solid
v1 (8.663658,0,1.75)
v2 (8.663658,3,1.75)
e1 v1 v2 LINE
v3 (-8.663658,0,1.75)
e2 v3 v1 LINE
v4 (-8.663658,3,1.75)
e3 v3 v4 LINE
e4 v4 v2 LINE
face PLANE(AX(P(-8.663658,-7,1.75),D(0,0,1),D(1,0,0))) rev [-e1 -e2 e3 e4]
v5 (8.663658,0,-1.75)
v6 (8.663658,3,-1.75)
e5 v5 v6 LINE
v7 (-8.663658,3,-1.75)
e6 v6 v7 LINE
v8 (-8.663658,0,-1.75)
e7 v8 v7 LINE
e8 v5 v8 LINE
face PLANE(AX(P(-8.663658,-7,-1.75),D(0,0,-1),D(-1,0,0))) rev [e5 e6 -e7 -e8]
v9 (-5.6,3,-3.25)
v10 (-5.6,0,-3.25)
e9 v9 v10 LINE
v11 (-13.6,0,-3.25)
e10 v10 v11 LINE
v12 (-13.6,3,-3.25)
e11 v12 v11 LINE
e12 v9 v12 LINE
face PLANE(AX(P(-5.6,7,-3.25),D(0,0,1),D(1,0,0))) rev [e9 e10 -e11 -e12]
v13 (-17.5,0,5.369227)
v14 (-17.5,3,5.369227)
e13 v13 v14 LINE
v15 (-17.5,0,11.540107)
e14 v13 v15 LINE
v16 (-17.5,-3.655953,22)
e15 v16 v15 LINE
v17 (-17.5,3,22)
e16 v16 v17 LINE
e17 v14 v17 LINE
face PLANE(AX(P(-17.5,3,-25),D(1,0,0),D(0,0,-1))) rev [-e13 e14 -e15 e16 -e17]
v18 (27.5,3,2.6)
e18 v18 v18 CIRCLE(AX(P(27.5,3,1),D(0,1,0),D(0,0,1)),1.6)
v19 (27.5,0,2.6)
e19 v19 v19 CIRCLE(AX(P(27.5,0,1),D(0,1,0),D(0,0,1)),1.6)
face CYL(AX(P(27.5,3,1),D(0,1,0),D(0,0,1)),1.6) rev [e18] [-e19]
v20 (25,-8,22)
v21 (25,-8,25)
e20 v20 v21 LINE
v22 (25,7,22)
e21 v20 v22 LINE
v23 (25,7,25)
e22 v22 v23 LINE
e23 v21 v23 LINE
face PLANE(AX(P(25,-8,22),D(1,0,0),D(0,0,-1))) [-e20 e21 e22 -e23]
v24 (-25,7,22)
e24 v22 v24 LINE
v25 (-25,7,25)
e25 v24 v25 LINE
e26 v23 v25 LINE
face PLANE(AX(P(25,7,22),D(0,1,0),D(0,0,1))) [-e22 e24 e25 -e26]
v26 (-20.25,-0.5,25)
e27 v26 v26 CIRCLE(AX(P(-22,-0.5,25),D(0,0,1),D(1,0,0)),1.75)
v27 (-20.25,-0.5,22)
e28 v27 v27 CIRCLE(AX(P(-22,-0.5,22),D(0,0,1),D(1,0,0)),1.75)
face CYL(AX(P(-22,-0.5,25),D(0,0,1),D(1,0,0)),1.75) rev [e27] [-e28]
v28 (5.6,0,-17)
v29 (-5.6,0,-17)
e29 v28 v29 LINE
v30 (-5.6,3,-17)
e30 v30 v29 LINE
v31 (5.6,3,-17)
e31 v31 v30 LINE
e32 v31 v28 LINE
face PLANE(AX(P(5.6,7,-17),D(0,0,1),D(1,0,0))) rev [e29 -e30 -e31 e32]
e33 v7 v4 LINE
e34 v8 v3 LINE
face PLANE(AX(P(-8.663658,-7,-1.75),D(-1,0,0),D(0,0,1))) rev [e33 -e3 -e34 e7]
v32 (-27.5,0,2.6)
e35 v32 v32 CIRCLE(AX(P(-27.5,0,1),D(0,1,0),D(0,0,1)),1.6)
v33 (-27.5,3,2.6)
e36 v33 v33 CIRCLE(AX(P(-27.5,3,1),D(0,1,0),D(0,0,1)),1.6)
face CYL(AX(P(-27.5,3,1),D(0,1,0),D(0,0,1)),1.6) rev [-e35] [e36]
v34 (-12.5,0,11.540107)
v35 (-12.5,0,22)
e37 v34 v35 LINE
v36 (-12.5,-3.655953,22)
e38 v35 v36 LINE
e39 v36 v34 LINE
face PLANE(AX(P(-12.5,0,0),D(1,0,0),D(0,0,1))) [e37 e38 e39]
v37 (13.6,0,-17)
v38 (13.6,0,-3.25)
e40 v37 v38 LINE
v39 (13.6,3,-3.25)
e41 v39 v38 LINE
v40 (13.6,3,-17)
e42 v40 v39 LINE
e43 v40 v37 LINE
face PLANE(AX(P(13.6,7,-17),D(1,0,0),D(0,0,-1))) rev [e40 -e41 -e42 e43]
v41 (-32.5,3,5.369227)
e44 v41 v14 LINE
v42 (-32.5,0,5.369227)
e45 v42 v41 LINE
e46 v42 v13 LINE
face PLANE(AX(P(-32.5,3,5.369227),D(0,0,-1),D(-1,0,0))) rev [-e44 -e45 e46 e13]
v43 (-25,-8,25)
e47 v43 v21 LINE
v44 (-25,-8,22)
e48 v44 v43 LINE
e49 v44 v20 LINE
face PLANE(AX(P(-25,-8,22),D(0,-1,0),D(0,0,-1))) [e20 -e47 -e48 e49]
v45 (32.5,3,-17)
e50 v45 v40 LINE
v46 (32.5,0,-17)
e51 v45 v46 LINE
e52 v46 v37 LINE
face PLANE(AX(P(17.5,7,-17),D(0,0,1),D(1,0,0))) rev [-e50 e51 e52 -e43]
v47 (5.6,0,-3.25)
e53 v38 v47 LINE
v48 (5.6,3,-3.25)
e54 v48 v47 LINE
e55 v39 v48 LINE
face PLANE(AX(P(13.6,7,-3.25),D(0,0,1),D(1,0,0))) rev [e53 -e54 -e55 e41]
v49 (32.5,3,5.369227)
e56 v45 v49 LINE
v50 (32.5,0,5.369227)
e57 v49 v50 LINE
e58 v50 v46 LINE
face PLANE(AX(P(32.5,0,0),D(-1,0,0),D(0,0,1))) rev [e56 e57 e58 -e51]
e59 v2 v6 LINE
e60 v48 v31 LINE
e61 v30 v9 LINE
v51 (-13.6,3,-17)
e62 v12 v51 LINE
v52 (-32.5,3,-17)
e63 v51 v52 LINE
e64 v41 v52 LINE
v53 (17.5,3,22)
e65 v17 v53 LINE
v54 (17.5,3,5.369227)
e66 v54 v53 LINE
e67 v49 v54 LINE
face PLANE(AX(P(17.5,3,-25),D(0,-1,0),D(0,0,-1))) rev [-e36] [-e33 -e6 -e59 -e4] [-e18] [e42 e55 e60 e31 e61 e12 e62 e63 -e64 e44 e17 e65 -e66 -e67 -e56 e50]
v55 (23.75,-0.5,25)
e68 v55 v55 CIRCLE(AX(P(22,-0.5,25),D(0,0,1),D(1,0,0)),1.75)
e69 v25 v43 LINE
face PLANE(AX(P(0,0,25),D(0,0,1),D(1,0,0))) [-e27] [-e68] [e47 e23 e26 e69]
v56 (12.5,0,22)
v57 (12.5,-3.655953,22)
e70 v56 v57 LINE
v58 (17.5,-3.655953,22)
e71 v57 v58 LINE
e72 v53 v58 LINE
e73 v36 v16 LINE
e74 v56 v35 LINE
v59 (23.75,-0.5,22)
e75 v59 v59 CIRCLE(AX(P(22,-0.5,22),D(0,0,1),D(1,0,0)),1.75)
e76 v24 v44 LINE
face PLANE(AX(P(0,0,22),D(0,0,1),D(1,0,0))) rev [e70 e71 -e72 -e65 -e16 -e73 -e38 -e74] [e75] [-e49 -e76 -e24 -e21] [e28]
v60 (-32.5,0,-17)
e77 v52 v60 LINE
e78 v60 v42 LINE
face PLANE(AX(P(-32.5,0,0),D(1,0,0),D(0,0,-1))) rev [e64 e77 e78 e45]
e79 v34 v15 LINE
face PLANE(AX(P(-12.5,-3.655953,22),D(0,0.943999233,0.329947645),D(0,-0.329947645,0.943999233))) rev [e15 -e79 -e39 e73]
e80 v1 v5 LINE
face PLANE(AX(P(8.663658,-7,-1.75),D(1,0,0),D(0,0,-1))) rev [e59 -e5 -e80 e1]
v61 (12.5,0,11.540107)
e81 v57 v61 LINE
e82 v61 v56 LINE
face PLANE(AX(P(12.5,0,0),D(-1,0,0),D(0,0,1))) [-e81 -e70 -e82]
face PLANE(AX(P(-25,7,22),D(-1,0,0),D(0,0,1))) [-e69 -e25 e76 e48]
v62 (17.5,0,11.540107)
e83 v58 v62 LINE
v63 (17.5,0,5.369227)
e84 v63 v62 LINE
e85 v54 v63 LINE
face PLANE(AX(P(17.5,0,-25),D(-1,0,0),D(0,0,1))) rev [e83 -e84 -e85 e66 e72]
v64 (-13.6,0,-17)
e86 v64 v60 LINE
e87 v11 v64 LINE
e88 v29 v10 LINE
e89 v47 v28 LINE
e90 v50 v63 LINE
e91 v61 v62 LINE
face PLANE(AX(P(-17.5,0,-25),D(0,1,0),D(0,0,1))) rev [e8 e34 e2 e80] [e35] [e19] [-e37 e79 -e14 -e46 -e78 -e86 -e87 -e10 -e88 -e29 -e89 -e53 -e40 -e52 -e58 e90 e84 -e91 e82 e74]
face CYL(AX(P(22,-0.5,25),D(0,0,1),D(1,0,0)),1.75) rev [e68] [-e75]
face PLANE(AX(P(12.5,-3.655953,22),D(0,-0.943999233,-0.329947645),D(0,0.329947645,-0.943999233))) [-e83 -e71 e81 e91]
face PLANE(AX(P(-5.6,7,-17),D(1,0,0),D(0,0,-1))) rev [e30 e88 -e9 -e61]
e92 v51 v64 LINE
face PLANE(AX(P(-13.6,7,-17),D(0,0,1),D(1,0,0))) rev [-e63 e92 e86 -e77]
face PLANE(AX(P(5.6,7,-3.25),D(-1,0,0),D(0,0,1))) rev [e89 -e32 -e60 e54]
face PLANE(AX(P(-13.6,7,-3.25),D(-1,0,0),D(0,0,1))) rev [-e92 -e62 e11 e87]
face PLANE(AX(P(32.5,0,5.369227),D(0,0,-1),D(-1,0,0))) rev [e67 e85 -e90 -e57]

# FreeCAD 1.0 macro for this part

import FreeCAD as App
import Part
import Sketcher
from FreeCAD import Vector
Q = App.Units.Quantity

doc = App.newDocument("Part")
body = doc.addObject("PartDesign::Body", "Body")

# Sketch on XY plane
sketch1 = doc.addObject("Sketcher::SketchObject", "Sketch")
body.addObject(sketch1)
sketch1.AttachmentSupport = (doc.XY_Plane, [""])
sketch1.MapMode = "FlatFace"
sketch1.AttachmentOffset = App.Placement(Vector(0, 0, 25), App.Rotation())
sketch1.addGeometry([
    Part.LineSegment(Vector(-25, 7, 0), Vector(-25, -8, 0)),
    Part.LineSegment(Vector(-25, -8, 0), Vector(25, -8, 0)),
    Part.LineSegment(Vector(25, -8, 0), Vector(25, 7, 0)),
    Part.LineSegment(Vector(25, 7, 0), Vector(-25, 7, 0)),
], False)
sketch1.addConstraint([
    Sketcher.Constraint("Coincident", 0, 2, 1, 1),
    Sketcher.Constraint("Coincident", 1, 2, 2, 1),
    Sketcher.Constraint("Coincident", 2, 2, 3, 1),
    Sketcher.Constraint("Coincident", 3, 2, 0, 1),
    Sketcher.Constraint("Vertical", 0),
    Sketcher.Constraint("Horizontal", 1),
    Sketcher.Constraint("Vertical", 2),
    Sketcher.Constraint("Horizontal", 3),
    Sketcher.Constraint("DistanceX", 1, 1, 1, 2, Q("50 mm")),
    Sketcher.Constraint("DistanceY", 0, 2, 0, 1, Q("15 mm")),
    Sketcher.Constraint("DistanceX", 0, 2, -1, 1, Q("25 mm")),
    Sketcher.Constraint("DistanceY", 0, 2, -1, 1, Q("8 mm")),
])
pad1 = doc.addObject("PartDesign::Pad", "Pad")
body.addObject(pad1)
pad1.Profile = sketch1
pad1.Length = 3
pad1.Reversed = True

# Sketch on XY plane
sketch2 = doc.addObject("Sketcher::SketchObject", "Sketch001")
body.addObject(sketch2)
sketch2.AttachmentSupport = (doc.XY_Plane, [""])
sketch2.MapMode = "FlatFace"
sketch2.AttachmentOffset = App.Placement(Vector(0, 0, 22), App.Rotation())
sketch2.addGeometry([
    Part.LineSegment(Vector(17.5, 3, 0), Vector(17.5, 0, 0)),
    Part.LineSegment(Vector(17.5, 0, 0), Vector(-17.5, 0, 0)),
    Part.LineSegment(Vector(-17.5, 0, 0), Vector(-17.5, 3, 0)),
    Part.LineSegment(Vector(-17.5, 3, 0), Vector(17.5, 3, 0)),
], False)
sketch2.addConstraint([
    Sketcher.Constraint("Coincident", 0, 2, 1, 1),
    Sketcher.Constraint("Coincident", 1, 2, 2, 1),
    Sketcher.Constraint("Coincident", 2, 2, 3, 1),
    Sketcher.Constraint("Coincident", 3, 2, 0, 1),
    Sketcher.Constraint("Vertical", 0),
    Sketcher.Constraint("Horizontal", 1),
    Sketcher.Constraint("Vertical", 2),
    Sketcher.Constraint("Horizontal", 3),
    Sketcher.Constraint("Symmetric", 0, 2, 1, 2, -1, 1),
    Sketcher.Constraint("DistanceX", 1, 2, 1, 1, Q("35 mm")),
    Sketcher.Constraint("DistanceY", 0, 2, 0, 1, Q("3 mm")),
])
pad2 = doc.addObject("PartDesign::Pad", "Pad001")
body.addObject(pad2)
pad2.Profile = sketch2
pad2.Length = 47
pad2.Reversed = True

# Sketch on YZ plane
sketch3 = doc.addObject("Sketcher::SketchObject", "Sketch002")
body.addObject(sketch3)
sketch3.AttachmentSupport = (doc.YZ_Plane, [""])
sketch3.MapMode = "FlatFace"
sketch3.AttachmentOffset = App.Placement(Vector(0, 0, 17.5), App.Rotation())
sketch3.addGeometry([
    Part.LineSegment(Vector(3, 5.4, 0), Vector(0, 5.4, 0)),
    Part.LineSegment(Vector(0, 5.4, 0), Vector(0, -25, 0)),
    Part.LineSegment(Vector(0, -25, 0), Vector(3, -25, 0)),
    Part.LineSegment(Vector(3, -25, 0), Vector(3, 5.4, 0)),
], False)
sketch3.addConstraint([
    Sketcher.Constraint("Coincident", 0, 2, 1, 1),
    Sketcher.Constraint("Coincident", 1, 2, 2, 1),
    Sketcher.Constraint("Coincident", 2, 2, 3, 1),
    Sketcher.Constraint("Coincident", 3, 2, 0, 1),
    Sketcher.Constraint("Horizontal", 0),
    Sketcher.Constraint("Vertical", 1),
    Sketcher.Constraint("Horizontal", 2),
    Sketcher.Constraint("Vertical", 3),
    Sketcher.Constraint("PointOnObject", 0, 2, -2),
    Sketcher.Constraint("DistanceX", 0, 2, 0, 1, Q("3 mm")),
    Sketcher.Constraint("DistanceY", 1, 2, -1, 1, Q("25 mm")),
    Sketcher.Constraint("DistanceY", 1, 2, 1, 1, Q("30.369227 mm")),
])
pad3 = doc.addObject("PartDesign::Pad", "Pad002")
body.addObject(pad3)
pad3.Profile = sketch3
pad3.Length = 15

# Sketch on YZ plane
sketch4 = doc.addObject("Sketcher::SketchObject", "Sketch003")
body.addObject(sketch4)
sketch4.AttachmentSupport = (doc.YZ_Plane, [""])
sketch4.MapMode = "FlatFace"
sketch4.AttachmentOffset = App.Placement(Vector(0, 0, -17.5), App.Rotation())
sketch4.addGeometry([
    Part.LineSegment(Vector(3, -25, 0), Vector(0, -25, 0)),
    Part.LineSegment(Vector(0, -25, 0), Vector(0, 5.4, 0)),
    Part.LineSegment(Vector(0, 5.4, 0), Vector(3, 5.4, 0)),
    Part.LineSegment(Vector(3, 5.4, 0), Vector(3, -25, 0)),
], False)
sketch4.addConstraint([
    Sketcher.Constraint("Coincident", 0, 2, 1, 1),
    Sketcher.Constraint("Coincident", 1, 2, 2, 1),
    Sketcher.Constraint("Coincident", 2, 2, 3, 1),
    Sketcher.Constraint("Coincident", 3, 2, 0, 1),
    Sketcher.Constraint("Horizontal", 0),
    Sketcher.Constraint("Vertical", 1),
    Sketcher.Constraint("Horizontal", 2),
    Sketcher.Constraint("Vertical", 3),
    Sketcher.Constraint("PointOnObject", 0, 2, -2),
    Sketcher.Constraint("DistanceX", 0, 2, 0, 1, Q("3 mm")),
    Sketcher.Constraint("DistanceY", 0, 2, -1, 1, Q("25 mm")),
    Sketcher.Constraint("DistanceY", 1, 1, 1, 2, Q("30.369227 mm")),
])
pad4 = doc.addObject("PartDesign::Pad", "Pad003")
body.addObject(pad4)
pad4.Profile = sketch4
pad4.Length = 15
pad4.Reversed = True

# Sketch on XZ plane
sketch5 = doc.addObject("Sketcher::SketchObject", "Sketch004")
body.addObject(sketch5)
sketch5.AttachmentSupport = (doc.XZ_Plane, [""])
sketch5.MapMode = "FlatFace"
sketch5.addGeometry([
    Part.LineSegment(Vector(17.5, -25, 0), Vector(17.5, -17, 0)),  # 0
    Part.LineSegment(Vector(17.5, -17, 0), Vector(13.6, -17, 0)),  # 1
    Part.LineSegment(Vector(13.6, -17, 0), Vector(13.6, -3.2, 0)),  # 2
    Part.LineSegment(Vector(13.6, -3.2, 0), Vector(5.6, -3.2, 0)),  # 3
    Part.LineSegment(Vector(5.6, -3.2, 0), Vector(5.6, -17, 0)),  # 4
    Part.LineSegment(Vector(5.6, -17, 0), Vector(-5.6, -17, 0)),  # 5
    Part.LineSegment(Vector(-5.6, -17, 0), Vector(-5.6, -3.2, 0)),  # 6
    Part.LineSegment(Vector(-5.6, -3.2, 0), Vector(-13.6, -3.2, 0)),  # 7
    Part.LineSegment(Vector(-13.6, -3.2, 0), Vector(-13.6, -17, 0)),  # 8
    Part.LineSegment(Vector(-13.6, -17, 0), Vector(-17.5, -17, 0)),  # 9
    Part.LineSegment(Vector(-17.5, -17, 0), Vector(-17.5, -25, 0)),  # 10
    Part.LineSegment(Vector(-17.5, -25, 0), Vector(17.5, -25, 0)),  # 11
], False)
sketch5.addConstraint([
    Sketcher.Constraint("Coincident", 0, 2, 1, 1),
    Sketcher.Constraint("Coincident", 1, 2, 2, 1),
    Sketcher.Constraint("Coincident", 2, 2, 3, 1),
    Sketcher.Constraint("Coincident", 3, 2, 4, 1),
    Sketcher.Constraint("Coincident", 4, 2, 5, 1),
    Sketcher.Constraint("Coincident", 5, 2, 6, 1),
    Sketcher.Constraint("Coincident", 6, 2, 7, 1),
    Sketcher.Constraint("Coincident", 7, 2, 8, 1),
    Sketcher.Constraint("Coincident", 8, 2, 9, 1),
    Sketcher.Constraint("Coincident", 9, 2, 10, 1),
    Sketcher.Constraint("Coincident", 10, 2, 11, 1),
    Sketcher.Constraint("Coincident", 11, 2, 0, 1),
    Sketcher.Constraint("Vertical", 0),
    Sketcher.Constraint("Horizontal", 1),
    Sketcher.Constraint("Vertical", 2),
    Sketcher.Constraint("Horizontal", 3),
    Sketcher.Constraint("Vertical", 4),
    Sketcher.Constraint("Horizontal", 5),
    Sketcher.Constraint("Vertical", 6),
    Sketcher.Constraint("Horizontal", 7),
    Sketcher.Constraint("Vertical", 8),
    Sketcher.Constraint("Horizontal", 9),
    Sketcher.Constraint("Vertical", 10),
    Sketcher.Constraint("Horizontal", 11),
    Sketcher.Constraint("Symmetric", 3, 2, 6, 2, -2),
    Sketcher.Constraint("Symmetric", 1, 2, 8, 2, -2),
    Sketcher.Constraint("Horizontal", 1, 2, 4, 2),
    Sketcher.Constraint("Equal", 1, 9),
    Sketcher.Constraint("Equal", 7, 0),
    Sketcher.Constraint("DistanceX", 3, 2, 3, 1, Q("8 mm")),
    Sketcher.Constraint("DistanceX", 11, 1, 11, 2, Q("35 mm")),
    Sketcher.Constraint("DistanceX", 1, 2, 1, 1, Q("3.9 mm")),
    Sketcher.Constraint("DistanceY", 0, 2, -1, 1, Q("17 mm")),
    Sketcher.Constraint("DistanceY", 2, 1, 2, 2, Q("13.75 mm")),
])
pocket1 = doc.addObject("PartDesign::Pocket", "Pocket")
body.addObject(pocket1)
pocket1.Profile = sketch5
pocket1.Type = "ThroughAll"

# Sketch on XY plane
sketch6 = doc.addObject("Sketcher::SketchObject", "Sketch005")
body.addObject(sketch6)
sketch6.AttachmentSupport = (doc.XY_Plane, [""])
sketch6.MapMode = "FlatFace"
sketch6.AttachmentOffset = App.Placement(Vector(0, 0, 25), App.Rotation())
sketch6.addGeometry([
    Part.Circle(Vector(22, -0.5, 0), Vector(0, 0, 1), 1.8),
    Part.Circle(Vector(-22, -0.5, 0), Vector(0, 0, 1), 1.8),
], False)
sketch6.addConstraint([
    Sketcher.Constraint("Equal", 0, 1),
    Sketcher.Constraint("Symmetric", 0, 3, 1, 3, -2),
    Sketcher.Constraint("Diameter", 0, Q("3.5 mm")),
    Sketcher.Constraint("DistanceX", -1, 1, 0, 3, Q("22 mm")),
    Sketcher.Constraint("DistanceY", 0, 3, -1, 1, Q("0.5 mm")),
])
doc.recompute()
hole = doc.addObject("PartDesign::Hole", "Hole")
body.addObject(hole)
hole.Profile = sketch6
hole.ThreadType = "None"
hole.Diameter = 3.5
hole.DepthType = "Dimension"
hole.Depth = 3
hole.DrillPoint = "Flat"

# Sketch on XZ plane
sketch7 = doc.addObject("Sketcher::SketchObject", "Sketch006")
body.addObject(sketch7)
sketch7.AttachmentSupport = (doc.XZ_Plane, [""])
sketch7.MapMode = "FlatFace"
sketch7.AttachmentOffset = App.Placement(Vector(0, 0, -3), App.Rotation())
sketch7.addGeometry([
    Part.Circle(Vector(-27.5, 1, 0), Vector(0, 0, 1), 1.6),
    Part.Circle(Vector(27.5, 1, 0), Vector(0, 0, 1), 1.6),
], False)
sketch7.addConstraint([
    Sketcher.Constraint("Equal", 0, 1),
    Sketcher.Constraint("Symmetric", 0, 3, 1, 3, -2),
    Sketcher.Constraint("Diameter", 0, Q("3.2 mm")),
    Sketcher.Constraint("DistanceY", -1, 1, 0, 3, Q("1 mm")),
    Sketcher.Constraint("DistanceX", 0, 3, 1, 3, Q("55 mm")),
])
doc.recompute()
hole2 = doc.addObject("PartDesign::Hole", "Hole001")
body.addObject(hole2)
hole2.Profile = sketch7
hole2.ThreadType = "None"
hole2.Diameter = 3.2
hole2.DepthType = "Dimension"
hole2.Depth = 11
hole2.DrillPoint = "Flat"
hole2.Reversed = True

# Sketch on YZ plane
sketch8 = doc.addObject("Sketcher::SketchObject", "Sketch007")
body.addObject(sketch8)
sketch8.AttachmentSupport = (doc.YZ_Plane, [""])
sketch8.MapMode = "FlatFace"
sketch8.AttachmentOffset = App.Placement(Vector(0, 0, -32.5), App.Rotation())
sketch8.addGeometry([
    Part.LineSegment(Vector(3, -17, 0), Vector(0, -17, 0)),
    Part.LineSegment(Vector(0, -17, 0), Vector(0, -25, 0)),
    Part.LineSegment(Vector(0, -25, 0), Vector(3, -25, 0)),
    Part.LineSegment(Vector(3, -25, 0), Vector(3, -17, 0)),
], False)
sketch8.addConstraint([
    Sketcher.Constraint("Coincident", 0, 2, 1, 1),
    Sketcher.Constraint("Coincident", 1, 2, 2, 1),
    Sketcher.Constraint("Coincident", 2, 2, 3, 1),
    Sketcher.Constraint("Coincident", 3, 2, 0, 1),
    Sketcher.Constraint("Horizontal", 0),
    Sketcher.Constraint("Vertical", 1),
    Sketcher.Constraint("Horizontal", 2),
    Sketcher.Constraint("Vertical", 3),
    Sketcher.Constraint("PointOnObject", 0, 2, -2),
    Sketcher.Constraint("DistanceX", 0, 2, 0, 1, Q("3 mm")),
    Sketcher.Constraint("DistanceY", 1, 2, 1, 1, Q("8 mm")),
    Sketcher.Constraint("DistanceY", 0, 2, -1, 1, Q("17 mm")),
])
pocket2 = doc.addObject("PartDesign::Pocket", "Pocket001")
body.addObject(pocket2)
pocket2.Profile = sketch8
pocket2.Type = "ThroughAll"
pocket2.Reversed = True

# Sketch on XZ plane
sketch9 = doc.addObject("Sketcher::SketchObject", "Sketch008")
body.addObject(sketch9)
sketch9.AttachmentSupport = (doc.XZ_Plane, [""])
sketch9.MapMode = "FlatFace"
sketch9.AttachmentOffset = App.Placement(Vector(0, 0, -3), App.Rotation())
sketch9.addGeometry([
    Part.LineSegment(Vector(-8.7, -1.8, 0), Vector(-8.7, 1.8, 0)),
    Part.LineSegment(Vector(-8.7, 1.8, 0), Vector(8.7, 1.8, 0)),
    Part.LineSegment(Vector(8.7, 1.8, 0), Vector(8.7, -1.8, 0)),
    Part.LineSegment(Vector(8.7, -1.8, 0), Vector(-8.7, -1.8, 0)),
], False)
sketch9.addConstraint([
    Sketcher.Constraint("Coincident", 0, 2, 1, 1),
    Sketcher.Constraint("Coincident", 1, 2, 2, 1),
    Sketcher.Constraint("Coincident", 2, 2, 3, 1),
    Sketcher.Constraint("Coincident", 3, 2, 0, 1),
    Sketcher.Constraint("Vertical", 0),
    Sketcher.Constraint("Horizontal", 1),
    Sketcher.Constraint("Vertical", 2),
    Sketcher.Constraint("Horizontal", 3),
    Sketcher.Constraint("Symmetric", 0, 2, 2, 2, -1, 1),
    Sketcher.Constraint("DistanceY", 0, 1, 0, 2, Q("3.5 mm")),
    Sketcher.Constraint("DistanceX", 1, 1, 1, 2, Q("17.327317 mm")),
])
pocket3 = doc.addObject("PartDesign::Pocket", "Pocket002")
body.addObject(pocket3)
pocket3.Profile = sketch9
pocket3.Length = 10
pocket3.Reversed = True

# Sketch on YZ plane
sketch10 = doc.addObject("Sketcher::SketchObject", "Sketch009")
body.addObject(sketch10)
sketch10.AttachmentSupport = (doc.YZ_Plane, [""])
sketch10.MapMode = "FlatFace"
sketch10.AttachmentOffset = App.Placement(Vector(0, 0, 17.5), App.Rotation())
sketch10.addGeometry([
    Part.LineSegment(Vector(-3.7, 22, 0), Vector(0, 11.5, 0)),
    Part.LineSegment(Vector(0, 11.5, 0), Vector(0, 22, 0)),
    Part.LineSegment(Vector(0, 22, 0), Vector(-3.7, 22, 0)),
], False)
sketch10.addConstraint([
    Sketcher.Constraint("Coincident", 0, 2, 1, 1),
    Sketcher.Constraint("Coincident", 1, 2, 2, 1),
    Sketcher.Constraint("Coincident", 2, 2, 0, 1),
    Sketcher.Constraint("Vertical", 1),
    Sketcher.Constraint("Horizontal", 2),
    Sketcher.Constraint("PointOnObject", 0, 2, -2),
    Sketcher.Constraint("DistanceY", -1, 1, 1, 2, Q("22 mm")),
    Sketcher.Constraint("DistanceX", 2, 2, 2, 1, Q("3.655953 mm")),
    Sketcher.Constraint("DistanceY", 1, 1, 1, 2, Q("10.459893 mm")),
])
pad5 = doc.addObject("PartDesign::Pad", "Pad004")
body.addObject(pad5)
pad5.Profile = sketch10
pad5.Length = 5
pad5.Reversed = True
doc.recompute()

mirrored = doc.addObject("PartDesign::Mirrored", "Mirrored")
body.addObject(mirrored)
mirrored.Originals = [pad5]
mirrored.MirrorPlane = (doc.YZ_Plane, [""])
body.Tip = mirrored

doc.recompute()
